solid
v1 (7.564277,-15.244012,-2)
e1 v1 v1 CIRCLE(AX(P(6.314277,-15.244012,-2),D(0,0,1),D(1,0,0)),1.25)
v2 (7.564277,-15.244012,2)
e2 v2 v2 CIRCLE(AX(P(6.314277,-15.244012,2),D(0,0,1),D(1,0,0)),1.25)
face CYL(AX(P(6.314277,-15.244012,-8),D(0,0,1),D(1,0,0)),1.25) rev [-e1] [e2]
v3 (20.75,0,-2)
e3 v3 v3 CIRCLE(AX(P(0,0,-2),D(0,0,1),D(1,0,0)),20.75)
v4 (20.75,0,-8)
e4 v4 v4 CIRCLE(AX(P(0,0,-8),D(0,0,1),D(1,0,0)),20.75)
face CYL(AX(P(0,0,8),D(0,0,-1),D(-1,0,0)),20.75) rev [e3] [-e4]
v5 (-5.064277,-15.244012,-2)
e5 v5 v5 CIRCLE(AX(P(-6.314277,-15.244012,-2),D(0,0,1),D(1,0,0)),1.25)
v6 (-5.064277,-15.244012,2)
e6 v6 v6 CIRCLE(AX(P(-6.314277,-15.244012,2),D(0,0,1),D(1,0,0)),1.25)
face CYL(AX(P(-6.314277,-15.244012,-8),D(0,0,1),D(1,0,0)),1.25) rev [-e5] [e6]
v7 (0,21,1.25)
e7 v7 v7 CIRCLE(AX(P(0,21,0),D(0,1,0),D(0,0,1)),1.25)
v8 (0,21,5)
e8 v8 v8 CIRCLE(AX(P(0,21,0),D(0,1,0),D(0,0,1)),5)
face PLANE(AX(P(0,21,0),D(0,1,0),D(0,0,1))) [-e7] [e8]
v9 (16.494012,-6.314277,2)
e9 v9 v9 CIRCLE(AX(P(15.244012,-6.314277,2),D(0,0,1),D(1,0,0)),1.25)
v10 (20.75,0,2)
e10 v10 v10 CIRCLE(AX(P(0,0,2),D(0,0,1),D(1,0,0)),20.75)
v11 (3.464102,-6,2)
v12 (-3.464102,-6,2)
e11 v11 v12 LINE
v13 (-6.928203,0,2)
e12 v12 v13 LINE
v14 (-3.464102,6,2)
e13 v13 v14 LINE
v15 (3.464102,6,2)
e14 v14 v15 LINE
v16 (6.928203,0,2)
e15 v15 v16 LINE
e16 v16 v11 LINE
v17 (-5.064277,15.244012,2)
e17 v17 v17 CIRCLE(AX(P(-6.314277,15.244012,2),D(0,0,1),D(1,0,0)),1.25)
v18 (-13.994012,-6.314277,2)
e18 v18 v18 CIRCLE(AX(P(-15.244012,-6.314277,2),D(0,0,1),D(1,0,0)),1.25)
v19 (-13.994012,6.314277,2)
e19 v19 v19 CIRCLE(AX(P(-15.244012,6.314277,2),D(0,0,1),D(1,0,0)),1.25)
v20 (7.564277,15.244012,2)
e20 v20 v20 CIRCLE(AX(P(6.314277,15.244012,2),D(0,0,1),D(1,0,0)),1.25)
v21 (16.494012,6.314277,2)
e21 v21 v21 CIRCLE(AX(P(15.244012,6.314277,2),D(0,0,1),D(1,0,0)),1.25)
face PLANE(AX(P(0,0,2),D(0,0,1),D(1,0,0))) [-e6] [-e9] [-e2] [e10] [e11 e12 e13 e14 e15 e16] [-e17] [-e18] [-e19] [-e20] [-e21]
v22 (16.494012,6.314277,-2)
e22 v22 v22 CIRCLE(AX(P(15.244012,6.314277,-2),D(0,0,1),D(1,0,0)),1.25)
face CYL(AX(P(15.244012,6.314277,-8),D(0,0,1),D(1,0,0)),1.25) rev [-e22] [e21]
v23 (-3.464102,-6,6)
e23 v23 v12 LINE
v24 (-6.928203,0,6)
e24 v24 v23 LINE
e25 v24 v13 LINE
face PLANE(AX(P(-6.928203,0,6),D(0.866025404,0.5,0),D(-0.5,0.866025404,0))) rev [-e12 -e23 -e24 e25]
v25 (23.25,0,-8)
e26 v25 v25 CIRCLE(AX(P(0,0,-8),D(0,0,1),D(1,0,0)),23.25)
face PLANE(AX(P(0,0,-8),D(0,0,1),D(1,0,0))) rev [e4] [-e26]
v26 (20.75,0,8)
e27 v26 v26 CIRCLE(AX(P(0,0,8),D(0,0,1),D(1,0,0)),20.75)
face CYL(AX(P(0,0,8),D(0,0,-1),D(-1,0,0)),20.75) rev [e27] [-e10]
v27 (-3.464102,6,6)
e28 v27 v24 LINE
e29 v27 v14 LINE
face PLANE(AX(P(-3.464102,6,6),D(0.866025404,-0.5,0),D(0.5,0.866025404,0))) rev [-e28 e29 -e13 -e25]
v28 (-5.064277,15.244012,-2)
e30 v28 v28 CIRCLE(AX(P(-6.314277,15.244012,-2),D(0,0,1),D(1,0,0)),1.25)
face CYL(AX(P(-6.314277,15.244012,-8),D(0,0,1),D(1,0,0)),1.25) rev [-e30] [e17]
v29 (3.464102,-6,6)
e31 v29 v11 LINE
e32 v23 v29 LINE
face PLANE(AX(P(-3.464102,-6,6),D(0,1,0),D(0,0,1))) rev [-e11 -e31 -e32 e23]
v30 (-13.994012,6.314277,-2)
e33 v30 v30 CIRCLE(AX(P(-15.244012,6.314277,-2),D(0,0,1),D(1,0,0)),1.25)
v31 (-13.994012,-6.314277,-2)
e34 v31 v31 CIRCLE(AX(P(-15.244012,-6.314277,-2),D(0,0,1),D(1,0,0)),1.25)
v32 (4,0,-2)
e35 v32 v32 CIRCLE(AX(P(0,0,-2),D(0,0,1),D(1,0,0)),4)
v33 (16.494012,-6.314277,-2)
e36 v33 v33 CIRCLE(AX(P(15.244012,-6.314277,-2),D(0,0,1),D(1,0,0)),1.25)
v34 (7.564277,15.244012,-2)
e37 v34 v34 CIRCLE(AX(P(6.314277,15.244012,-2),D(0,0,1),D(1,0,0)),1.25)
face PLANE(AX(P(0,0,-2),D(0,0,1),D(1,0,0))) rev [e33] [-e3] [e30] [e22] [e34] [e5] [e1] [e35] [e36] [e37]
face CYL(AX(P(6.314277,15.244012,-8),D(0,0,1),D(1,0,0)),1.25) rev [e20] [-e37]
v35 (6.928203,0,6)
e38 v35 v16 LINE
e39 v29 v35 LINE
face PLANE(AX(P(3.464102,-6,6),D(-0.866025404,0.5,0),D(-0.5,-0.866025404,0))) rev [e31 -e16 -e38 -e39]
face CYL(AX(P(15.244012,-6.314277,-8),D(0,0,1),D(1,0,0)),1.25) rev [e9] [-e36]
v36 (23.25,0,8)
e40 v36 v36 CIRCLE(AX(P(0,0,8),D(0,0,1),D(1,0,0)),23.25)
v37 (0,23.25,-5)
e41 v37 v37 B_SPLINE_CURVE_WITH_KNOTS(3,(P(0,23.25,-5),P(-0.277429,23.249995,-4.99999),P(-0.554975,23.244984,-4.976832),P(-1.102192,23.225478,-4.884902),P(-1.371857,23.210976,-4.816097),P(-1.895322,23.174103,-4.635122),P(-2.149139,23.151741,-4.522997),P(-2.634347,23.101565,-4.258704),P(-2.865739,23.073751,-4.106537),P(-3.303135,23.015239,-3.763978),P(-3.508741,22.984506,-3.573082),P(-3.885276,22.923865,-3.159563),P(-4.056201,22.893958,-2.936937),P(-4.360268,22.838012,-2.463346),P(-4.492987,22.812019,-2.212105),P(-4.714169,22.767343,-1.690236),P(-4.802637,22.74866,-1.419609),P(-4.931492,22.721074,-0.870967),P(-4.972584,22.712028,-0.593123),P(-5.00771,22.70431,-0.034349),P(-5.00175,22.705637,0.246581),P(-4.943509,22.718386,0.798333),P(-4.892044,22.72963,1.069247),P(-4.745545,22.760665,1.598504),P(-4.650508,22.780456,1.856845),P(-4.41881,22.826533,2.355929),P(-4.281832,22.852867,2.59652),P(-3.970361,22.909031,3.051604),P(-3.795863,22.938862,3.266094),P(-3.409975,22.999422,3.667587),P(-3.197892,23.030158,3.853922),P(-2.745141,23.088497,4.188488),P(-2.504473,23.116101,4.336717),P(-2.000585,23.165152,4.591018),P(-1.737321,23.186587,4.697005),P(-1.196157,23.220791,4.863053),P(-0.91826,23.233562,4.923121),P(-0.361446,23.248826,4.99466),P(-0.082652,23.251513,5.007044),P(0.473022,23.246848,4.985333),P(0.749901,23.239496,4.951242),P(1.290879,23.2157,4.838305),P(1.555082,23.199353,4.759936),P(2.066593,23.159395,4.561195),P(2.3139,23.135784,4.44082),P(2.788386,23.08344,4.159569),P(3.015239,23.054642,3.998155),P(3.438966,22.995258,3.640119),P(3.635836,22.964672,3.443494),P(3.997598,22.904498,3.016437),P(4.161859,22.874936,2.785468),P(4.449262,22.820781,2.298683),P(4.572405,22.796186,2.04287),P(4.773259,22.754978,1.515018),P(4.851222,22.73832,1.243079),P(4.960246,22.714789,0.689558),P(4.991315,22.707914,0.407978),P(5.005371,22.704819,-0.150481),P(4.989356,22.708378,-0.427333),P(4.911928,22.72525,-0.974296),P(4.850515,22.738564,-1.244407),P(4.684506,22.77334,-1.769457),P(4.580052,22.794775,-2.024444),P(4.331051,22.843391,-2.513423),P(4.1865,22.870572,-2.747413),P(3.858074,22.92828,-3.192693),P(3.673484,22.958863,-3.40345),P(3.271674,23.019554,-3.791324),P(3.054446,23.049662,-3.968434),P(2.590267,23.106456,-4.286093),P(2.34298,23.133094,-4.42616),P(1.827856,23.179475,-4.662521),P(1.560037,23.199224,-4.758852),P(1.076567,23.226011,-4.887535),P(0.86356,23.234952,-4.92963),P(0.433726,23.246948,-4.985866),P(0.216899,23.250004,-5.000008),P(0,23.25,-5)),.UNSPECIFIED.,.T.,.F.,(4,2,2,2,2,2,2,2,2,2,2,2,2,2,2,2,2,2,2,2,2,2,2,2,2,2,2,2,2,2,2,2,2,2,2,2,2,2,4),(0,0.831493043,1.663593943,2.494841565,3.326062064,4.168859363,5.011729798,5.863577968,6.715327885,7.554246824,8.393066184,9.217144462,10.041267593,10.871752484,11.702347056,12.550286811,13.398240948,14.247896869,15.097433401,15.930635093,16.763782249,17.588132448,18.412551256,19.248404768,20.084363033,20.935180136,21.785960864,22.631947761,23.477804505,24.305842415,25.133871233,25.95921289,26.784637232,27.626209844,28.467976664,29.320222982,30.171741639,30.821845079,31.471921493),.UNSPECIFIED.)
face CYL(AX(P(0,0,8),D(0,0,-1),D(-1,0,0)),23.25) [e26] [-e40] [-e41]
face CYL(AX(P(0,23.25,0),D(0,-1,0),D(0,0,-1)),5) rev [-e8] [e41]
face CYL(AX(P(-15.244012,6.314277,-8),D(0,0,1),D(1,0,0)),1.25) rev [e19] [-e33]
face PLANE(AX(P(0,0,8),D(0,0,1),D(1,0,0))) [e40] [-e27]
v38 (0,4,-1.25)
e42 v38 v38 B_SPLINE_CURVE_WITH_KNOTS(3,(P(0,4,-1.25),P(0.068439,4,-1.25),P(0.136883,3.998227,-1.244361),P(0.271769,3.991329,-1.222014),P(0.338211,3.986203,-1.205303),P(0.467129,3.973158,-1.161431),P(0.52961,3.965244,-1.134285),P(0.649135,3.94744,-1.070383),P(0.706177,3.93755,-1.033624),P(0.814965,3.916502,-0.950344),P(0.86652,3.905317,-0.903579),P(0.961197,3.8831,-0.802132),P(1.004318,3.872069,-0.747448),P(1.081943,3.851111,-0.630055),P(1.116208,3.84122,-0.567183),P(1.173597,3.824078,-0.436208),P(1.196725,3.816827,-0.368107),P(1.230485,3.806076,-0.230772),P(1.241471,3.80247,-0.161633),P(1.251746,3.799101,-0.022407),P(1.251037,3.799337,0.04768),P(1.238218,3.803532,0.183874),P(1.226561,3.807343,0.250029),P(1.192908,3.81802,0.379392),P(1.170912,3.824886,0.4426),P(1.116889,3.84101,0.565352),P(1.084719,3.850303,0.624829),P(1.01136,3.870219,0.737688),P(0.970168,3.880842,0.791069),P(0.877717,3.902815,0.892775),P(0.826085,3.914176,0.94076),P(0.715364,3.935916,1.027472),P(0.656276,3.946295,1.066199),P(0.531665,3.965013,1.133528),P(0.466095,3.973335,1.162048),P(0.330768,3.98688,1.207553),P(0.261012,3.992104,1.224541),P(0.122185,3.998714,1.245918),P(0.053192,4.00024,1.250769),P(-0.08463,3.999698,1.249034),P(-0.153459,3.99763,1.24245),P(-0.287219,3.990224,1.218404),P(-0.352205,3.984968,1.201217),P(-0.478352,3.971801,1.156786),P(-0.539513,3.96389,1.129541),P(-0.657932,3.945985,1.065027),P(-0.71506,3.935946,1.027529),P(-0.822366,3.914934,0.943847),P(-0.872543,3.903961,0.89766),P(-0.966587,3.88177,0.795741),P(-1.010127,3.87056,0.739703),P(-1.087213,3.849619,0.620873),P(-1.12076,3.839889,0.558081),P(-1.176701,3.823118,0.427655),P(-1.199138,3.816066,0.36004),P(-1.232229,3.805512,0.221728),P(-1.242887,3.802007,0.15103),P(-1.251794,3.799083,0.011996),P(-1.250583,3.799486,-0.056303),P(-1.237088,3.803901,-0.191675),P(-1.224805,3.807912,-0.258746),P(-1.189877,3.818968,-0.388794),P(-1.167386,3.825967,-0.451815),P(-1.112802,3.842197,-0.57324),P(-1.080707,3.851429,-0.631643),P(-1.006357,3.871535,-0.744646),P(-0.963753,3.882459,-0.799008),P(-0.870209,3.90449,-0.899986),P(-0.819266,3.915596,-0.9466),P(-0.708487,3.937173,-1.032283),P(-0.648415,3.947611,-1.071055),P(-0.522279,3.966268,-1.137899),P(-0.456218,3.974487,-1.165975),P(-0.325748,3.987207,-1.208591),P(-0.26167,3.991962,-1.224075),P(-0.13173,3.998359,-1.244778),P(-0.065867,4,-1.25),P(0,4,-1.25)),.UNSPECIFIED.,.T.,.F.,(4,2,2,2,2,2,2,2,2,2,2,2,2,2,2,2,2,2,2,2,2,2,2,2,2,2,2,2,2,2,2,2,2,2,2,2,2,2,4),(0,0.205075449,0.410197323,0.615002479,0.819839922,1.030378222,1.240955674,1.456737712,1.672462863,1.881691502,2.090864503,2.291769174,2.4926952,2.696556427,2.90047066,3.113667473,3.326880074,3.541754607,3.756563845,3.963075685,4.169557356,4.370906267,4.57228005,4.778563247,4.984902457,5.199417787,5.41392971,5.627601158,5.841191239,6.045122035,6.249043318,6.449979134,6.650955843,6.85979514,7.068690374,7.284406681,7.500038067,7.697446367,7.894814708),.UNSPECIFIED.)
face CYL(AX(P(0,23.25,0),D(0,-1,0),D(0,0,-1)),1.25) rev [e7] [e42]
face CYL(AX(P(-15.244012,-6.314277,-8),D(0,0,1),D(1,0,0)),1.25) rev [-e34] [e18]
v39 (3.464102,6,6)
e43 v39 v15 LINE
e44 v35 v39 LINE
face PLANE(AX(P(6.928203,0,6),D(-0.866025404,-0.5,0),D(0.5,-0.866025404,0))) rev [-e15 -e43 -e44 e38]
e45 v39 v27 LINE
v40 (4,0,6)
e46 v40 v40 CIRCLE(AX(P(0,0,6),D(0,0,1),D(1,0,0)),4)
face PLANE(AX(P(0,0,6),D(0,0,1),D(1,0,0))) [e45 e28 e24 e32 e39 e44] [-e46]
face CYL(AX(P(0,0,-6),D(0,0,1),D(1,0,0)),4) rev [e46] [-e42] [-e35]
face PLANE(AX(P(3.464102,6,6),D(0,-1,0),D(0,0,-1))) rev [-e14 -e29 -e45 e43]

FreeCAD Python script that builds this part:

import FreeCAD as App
import Part
import Sketcher

V = App.Vector
Q = App.Units.Quantity

doc = App.newDocument("Part")
body = doc.addObject("PartDesign::Body", "Body")

sketch1 = body.newObject("Sketcher::SketchObject", "Sketch")
sketch1.AttachmentSupport = (doc.getObject("XY_Plane"), [""])
sketch1.MapMode = "FlatFace"
sketch1.addGeometry(Part.Circle(V(0, 0, 0), V(0, 0, 1), 23), False)
sketch1.addGeometry(Part.Circle(V(0, 0, 0), V(0, 0, 1), 21), False)
sketch1.addConstraint(Sketcher.Constraint("Coincident", 0, 3, -1, 1))
sketch1.addConstraint(Sketcher.Constraint("Coincident", 1, 3, -1, 1))
sketch1.addConstraint(Sketcher.Constraint("Diameter", 0, 46.5))
sketch1.addConstraint(Sketcher.Constraint("Diameter", 1, 41.5))
pad1 = body.newObject("PartDesign::Pad", "Pad")
pad1.Profile = sketch1
pad1.Length = 16
pad1.Midplane = True

sketch2 = body.newObject("Sketcher::SketchObject", "Sketch001")
sketch2.AttachmentSupport = (doc.getObject("XY_Plane"), [""])
sketch2.MapMode = "FlatFace"
sketch2.addGeometry(Part.Circle(V(0, 0, 0), V(0, 0, 1), 21), False)
sketch2.addConstraint(Sketcher.Constraint("Coincident", 0, 3, -1, 1))
sketch2.addConstraint(Sketcher.Constraint("Diameter", 0, 41.5))
pad2 = body.newObject("PartDesign::Pad", "Pad001")
pad2.Profile = sketch2
pad2.Length = 4
pad2.Midplane = True

sketch3 = body.newObject("Sketcher::SketchObject", "Sketch002")
sketch3.AttachmentSupport = (doc.getObject("XY_Plane"), [""])
sketch3.MapMode = "FlatFace"
sketch3.addGeometry(Part.LineSegment(V(-3, 6, 0), V(-7, 0, 0)), False)
sketch3.addGeometry(Part.LineSegment(V(-7, 0, 0), V(-3, -6, 0)), False)
sketch3.addGeometry(Part.LineSegment(V(-3, -6, 0), V(3, -6, 0)), False)
sketch3.addGeometry(Part.LineSegment(V(3, -6, 0), V(7, 0, 0)), False)
sketch3.addGeometry(Part.LineSegment(V(7, 0, 0), V(3, 6, 0)), False)
sketch3.addGeometry(Part.LineSegment(V(3, 6, 0), V(-3, 6, 0)), False)
sketch3.addConstraint(Sketcher.Constraint("Coincident", 0, 2, 1, 1))
sketch3.addConstraint(Sketcher.Constraint("Coincident", 1, 2, 2, 1))
sketch3.addConstraint(Sketcher.Constraint("Coincident", 2, 2, 3, 1))
sketch3.addConstraint(Sketcher.Constraint("Coincident", 3, 2, 4, 1))
sketch3.addConstraint(Sketcher.Constraint("Coincident", 4, 2, 5, 1))
sketch3.addConstraint(Sketcher.Constraint("Coincident", 5, 2, 0, 1))
sketch3.addConstraint(Sketcher.Constraint("Horizontal", 2))
sketch3.addConstraint(Sketcher.Constraint("Horizontal", 5))
sketch3.addConstraint(Sketcher.Constraint("Symmetric", 0, 2, 3, 2, -1, 1))
sketch3.addConstraint(Sketcher.Constraint("Symmetric", 1, 2, 4, 2, -1, 1))
sketch3.addConstraint(Sketcher.Constraint("PointOnObject", 0, 2, -1))
sketch3.addConstraint(Sketcher.Constraint("Parallel", 0, 3))
sketch3.addConstraint(Sketcher.Constraint("Vertical", 2, 2, 4, 2))
sketch3.addConstraint(Sketcher.Constraint("Angle", 0, Q("-120 deg")))
sketch3.addConstraint(Sketcher.Constraint("DistanceY", 1, 2, -1, 1, 6.0))
sketch3.addConstraint(Sketcher.Constraint("DistanceX", 1, 2, -1, 1, 3.464102))
pad3 = body.newObject("PartDesign::Pad", "Pad002")
pad3.Profile = sketch3
pad3.Length = 6

sketch4 = body.newObject("Sketcher::SketchObject", "Sketch003")
sketch4.AttachmentSupport = (doc.getObject("XY_Plane"), [""])
sketch4.MapMode = "FlatFace"
sketch4.addGeometry(Part.Circle(V(0, 0, 0), V(0, 0, 1), 4), False)
sketch4.addConstraint(Sketcher.Constraint("Coincident", 0, 3, -1, 1))
sketch4.addConstraint(Sketcher.Constraint("Diameter", 0, 8.0))
pocket1 = body.newObject("PartDesign::Pocket", "Pocket")
pocket1.Profile = sketch4
pocket1.Length = 12
pocket1.Midplane = True

sketch5 = body.newObject("Sketcher::SketchObject", "Sketch004")
sketch5.AttachmentSupport = (doc.getObject("XZ_Plane"), [""])
sketch5.MapMode = "FlatFace"
sketch5.AttachmentOffset = App.Placement(V(0, 0, -21), App.Rotation())
sketch5.addGeometry(Part.Circle(V(0, 0, 0), V(0, 0, 1), 1.2), False)
sketch5.addConstraint(Sketcher.Constraint("Coincident", 0, 3, -1, 1))
sketch5.addConstraint(Sketcher.Constraint("Diameter", 0, 2.5))
pocket2 = body.newObject("PartDesign::Pocket", "Pocket001")
pocket2.Profile = sketch5
pocket2.Type = "TwoLengths"
pocket2.Length = 3.25
pocket2.Length2 = 22

sketch6 = body.newObject("Sketcher::SketchObject", "Sketch005")
sketch6.AttachmentSupport = (doc.getObject("XZ_Plane"), [""])
sketch6.MapMode = "FlatFace"
sketch6.AttachmentOffset = App.Placement(V(0, 0, -21), App.Rotation())
sketch6.addGeometry(Part.Circle(V(0, 0, 0), V(0, 0, 1), 5), False)
sketch6.addConstraint(Sketcher.Constraint("Coincident", 0, 3, -1, 1))
sketch6.addConstraint(Sketcher.Constraint("Diameter", 0, 10.0))
pocket3 = body.newObject("PartDesign::Pocket", "Pocket002")
pocket3.Profile = sketch6
pocket3.Type = "ThroughAll"

sketch7 = body.newObject("Sketcher::SketchObject", "Sketch006")
sketch7.AttachmentSupport = (doc.getObject("XY_Plane"), [""])
sketch7.MapMode = "FlatFace"
sketch7.addGeometry(Part.Circle(V(-6.3, 15.2, 0), V(0, 0, 1), 1.2), False)
sketch7.addConstraint(Sketcher.Constraint("Diameter", 0, 2.5))
sketch7.addConstraint(Sketcher.Constraint("DistanceX", 0, 3, -1, 1, 6.314277))
sketch7.addConstraint(Sketcher.Constraint("DistanceY", -1, 1, 0, 3, 15.244012))
pocket4 = body.newObject("PartDesign::Pocket", "Pocket003")
pocket4.Profile = sketch7
pocket4.Length = 18
pocket4.Midplane = True
doc.recompute()

polarpattern = body.newObject("PartDesign::PolarPattern", "PolarPattern")
polarpattern.Originals = [pocket4]
polarpattern.Axis = (doc.getObject("Z_Axis"), [""])
polarpattern.Angle = 360
polarpattern.Occurrences = 8
body.Tip = polarpattern

doc.recompute()
